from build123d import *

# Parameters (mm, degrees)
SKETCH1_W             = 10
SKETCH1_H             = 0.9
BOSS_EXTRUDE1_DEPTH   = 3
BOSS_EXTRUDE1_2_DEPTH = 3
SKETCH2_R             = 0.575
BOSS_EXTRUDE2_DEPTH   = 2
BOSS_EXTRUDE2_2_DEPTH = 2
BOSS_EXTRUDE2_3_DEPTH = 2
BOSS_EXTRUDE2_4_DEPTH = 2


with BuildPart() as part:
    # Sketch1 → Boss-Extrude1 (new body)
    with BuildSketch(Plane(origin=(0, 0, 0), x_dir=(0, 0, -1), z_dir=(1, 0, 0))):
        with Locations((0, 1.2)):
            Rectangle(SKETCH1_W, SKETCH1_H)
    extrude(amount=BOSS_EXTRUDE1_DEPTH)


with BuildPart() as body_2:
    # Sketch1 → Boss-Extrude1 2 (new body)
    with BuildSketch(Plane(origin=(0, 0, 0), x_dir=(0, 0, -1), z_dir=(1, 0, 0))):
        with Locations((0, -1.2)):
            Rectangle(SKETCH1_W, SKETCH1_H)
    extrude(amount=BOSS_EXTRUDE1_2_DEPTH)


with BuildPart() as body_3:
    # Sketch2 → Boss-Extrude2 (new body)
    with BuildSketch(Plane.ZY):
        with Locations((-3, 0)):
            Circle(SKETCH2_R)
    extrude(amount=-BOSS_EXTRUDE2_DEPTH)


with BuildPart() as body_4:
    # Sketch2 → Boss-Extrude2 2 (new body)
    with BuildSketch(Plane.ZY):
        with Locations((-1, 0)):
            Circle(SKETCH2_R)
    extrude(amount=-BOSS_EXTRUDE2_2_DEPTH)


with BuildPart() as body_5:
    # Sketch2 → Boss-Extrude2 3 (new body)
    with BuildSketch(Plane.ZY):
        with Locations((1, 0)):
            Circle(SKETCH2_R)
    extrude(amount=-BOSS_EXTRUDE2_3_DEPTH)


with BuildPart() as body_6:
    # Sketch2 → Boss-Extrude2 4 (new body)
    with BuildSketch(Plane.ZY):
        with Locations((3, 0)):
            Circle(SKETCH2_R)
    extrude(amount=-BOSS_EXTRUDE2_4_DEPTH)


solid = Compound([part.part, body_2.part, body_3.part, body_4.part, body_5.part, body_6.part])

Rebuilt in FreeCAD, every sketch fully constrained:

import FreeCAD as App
import Part
import Sketcher
Q = App.Units.Quantity


def add_polygon(sketch, points):
    """Adds a closed chain of lines whose ends are joined by coincident constraints."""
    first, n = sketch.GeometryCount, len(points)
    for a, b in zip(points, points[1:] + points[:1]):
        sketch.addGeometry(Part.LineSegment(App.Vector(*a, 0), App.Vector(*b, 0)), False)
    for i in range(n):
        sketch.addConstraint(Sketcher.Constraint("Coincident", first + i, 2, first + (i + 1) % n, 1))

doc = App.newDocument("Part")
body = doc.addObject("PartDesign::Body", "Body")

# Sketch on YZ plane
sketch1 = doc.addObject("Sketcher::SketchObject", "Sketch")
body.addObject(sketch1)
sketch1.AttachmentSupport = (doc.YZ_Plane, [""])
sketch1.MapMode = "FlatFace"
add_polygon(sketch1, [(1.6, 5), (0.8, 5), (0.8, -5), (1.6, -5)])  # lines 0-3
sketch1.addConstraint(Sketcher.Constraint("Horizontal", 0))
sketch1.addConstraint(Sketcher.Constraint("Vertical", 1))
sketch1.addConstraint(Sketcher.Constraint("Horizontal", 2))
sketch1.addConstraint(Sketcher.Constraint("Vertical", 3))
sketch1.addConstraint(Sketcher.Constraint("DistanceY", 1, 2, 1, 1, Q("10 mm")))
sketch1.addConstraint(Sketcher.Constraint("DistanceX", 0, 2, 0, 1, Q("0.9 mm")))
sketch1.addConstraint(Sketcher.Constraint("DistanceY", -1, 1, 0, 2, Q("5 mm")))
sketch1.addConstraint(Sketcher.Constraint("DistanceX", -1, 1, 0, 2, Q("0.75 mm")))
pad1 = doc.addObject("PartDesign::Pad", "Pad")
body.addObject(pad1)
pad1.Profile = sketch1
pad1.Length = 3
body2 = doc.addObject("PartDesign::Body", "Body001")

# Sketch on YZ plane
sketch2 = doc.addObject("Sketcher::SketchObject", "Sketch001")
body2.addObject(sketch2)
sketch2.AttachmentSupport = (doc.getObject("YZ_Plane001"), [""])
sketch2.MapMode = "FlatFace"
add_polygon(sketch2, [(-0.8, 5), (-1.6, 5), (-1.6, -5), (-0.8, -5)])  # lines 0-3
sketch2.addConstraint(Sketcher.Constraint("Horizontal", 0))
sketch2.addConstraint(Sketcher.Constraint("Vertical", 1))
sketch2.addConstraint(Sketcher.Constraint("Horizontal", 2))
sketch2.addConstraint(Sketcher.Constraint("Vertical", 3))
sketch2.addConstraint(Sketcher.Constraint("DistanceY", 1, 2, 1, 1, Q("10 mm")))
sketch2.addConstraint(Sketcher.Constraint("DistanceX", 0, 2, 0, 1, Q("0.9 mm")))
sketch2.addConstraint(Sketcher.Constraint("DistanceY", -1, 1, 0, 2, Q("5 mm")))
sketch2.addConstraint(Sketcher.Constraint("DistanceX", 0, 2, -1, 1, Q("1.65 mm")))
pad2 = doc.addObject("PartDesign::Pad", "Pad001")
body2.addObject(pad2)
pad2.Profile = sketch2
pad2.Length = 3
body3 = doc.addObject("PartDesign::Body", "Body002")

# Sketch on YZ plane
sketch3 = doc.addObject("Sketcher::SketchObject", "Sketch002")
body3.addObject(sketch3)
sketch3.AttachmentSupport = (doc.getObject("YZ_Plane002"), [""])
sketch3.MapMode = "FlatFace"
sketch3.addGeometry(Part.Circle(App.Vector(0, -3, 0), App.Vector(0, 0, 1), 0.6), False)
sketch3.addConstraint(Sketcher.Constraint("PointOnObject", 0, 3, -2))
sketch3.addConstraint(Sketcher.Constraint("Diameter", 0, Q("1.15 mm")))
sketch3.addConstraint(Sketcher.Constraint("DistanceY", 0, 3, -1, 1, Q("3 mm")))
pad3 = doc.addObject("PartDesign::Pad", "Pad002")
body3.addObject(pad3)
pad3.Profile = sketch3
pad3.Length = 2
body4 = doc.addObject("PartDesign::Body", "Body003")

# Sketch on YZ plane
sketch4 = doc.addObject("Sketcher::SketchObject", "Sketch003")
body4.addObject(sketch4)
sketch4.AttachmentSupport = (doc.getObject("YZ_Plane003"), [""])
sketch4.MapMode = "FlatFace"
sketch4.addGeometry(Part.Circle(App.Vector(0, -1, 0), App.Vector(0, 0, 1), 0.6), False)
sketch4.addConstraint(Sketcher.Constraint("PointOnObject", 0, 3, -2))
sketch4.addConstraint(Sketcher.Constraint("Diameter", 0, Q("1.15 mm")))
sketch4.addConstraint(Sketcher.Constraint("DistanceY", 0, 3, -1, 1, Q("1 mm")))
pad4 = doc.addObject("PartDesign::Pad", "Pad003")
body4.addObject(pad4)
pad4.Profile = sketch4
pad4.Length = 2
body5 = doc.addObject("PartDesign::Body", "Body004")

# Sketch on YZ plane
sketch5 = doc.addObject("Sketcher::SketchObject", "Sketch004")
body5.addObject(sketch5)
sketch5.AttachmentSupport = (doc.getObject("YZ_Plane004"), [""])
sketch5.MapMode = "FlatFace"
sketch5.addGeometry(Part.Circle(App.Vector(0, 1, 0), App.Vector(0, 0, 1), 0.6), False)
sketch5.addConstraint(Sketcher.Constraint("PointOnObject", 0, 3, -2))
sketch5.addConstraint(Sketcher.Constraint("Diameter", 0, Q("1.15 mm")))
sketch5.addConstraint(Sketcher.Constraint("DistanceY", -1, 1, 0, 3, Q("1 mm")))
pad5 = doc.addObject("PartDesign::Pad", "Pad004")
body5.addObject(pad5)
pad5.Profile = sketch5
pad5.Length = 2
body6 = doc.addObject("PartDesign::Body", "Body005")

# Sketch on YZ plane
sketch6 = doc.addObject("Sketcher::SketchObject", "Sketch005")
body6.addObject(sketch6)
sketch6.AttachmentSupport = (doc.getObject("YZ_Plane005"), [""])
sketch6.MapMode = "FlatFace"
sketch6.addGeometry(Part.Circle(App.Vector(0, 3, 0), App.Vector(0, 0, 1), 0.6), False)
sketch6.addConstraint(Sketcher.Constraint("PointOnObject", 0, 3, -2))
sketch6.addConstraint(Sketcher.Constraint("Diameter", 0, Q("1.15 mm")))
sketch6.addConstraint(Sketcher.Constraint("DistanceY", -1, 1, 0, 3, Q("3 mm")))
pad6 = doc.addObject("PartDesign::Pad", "Pad005")
body6.addObject(pad6)
pad6.Profile = sketch6
pad6.Length = 2

doc.recompute()
